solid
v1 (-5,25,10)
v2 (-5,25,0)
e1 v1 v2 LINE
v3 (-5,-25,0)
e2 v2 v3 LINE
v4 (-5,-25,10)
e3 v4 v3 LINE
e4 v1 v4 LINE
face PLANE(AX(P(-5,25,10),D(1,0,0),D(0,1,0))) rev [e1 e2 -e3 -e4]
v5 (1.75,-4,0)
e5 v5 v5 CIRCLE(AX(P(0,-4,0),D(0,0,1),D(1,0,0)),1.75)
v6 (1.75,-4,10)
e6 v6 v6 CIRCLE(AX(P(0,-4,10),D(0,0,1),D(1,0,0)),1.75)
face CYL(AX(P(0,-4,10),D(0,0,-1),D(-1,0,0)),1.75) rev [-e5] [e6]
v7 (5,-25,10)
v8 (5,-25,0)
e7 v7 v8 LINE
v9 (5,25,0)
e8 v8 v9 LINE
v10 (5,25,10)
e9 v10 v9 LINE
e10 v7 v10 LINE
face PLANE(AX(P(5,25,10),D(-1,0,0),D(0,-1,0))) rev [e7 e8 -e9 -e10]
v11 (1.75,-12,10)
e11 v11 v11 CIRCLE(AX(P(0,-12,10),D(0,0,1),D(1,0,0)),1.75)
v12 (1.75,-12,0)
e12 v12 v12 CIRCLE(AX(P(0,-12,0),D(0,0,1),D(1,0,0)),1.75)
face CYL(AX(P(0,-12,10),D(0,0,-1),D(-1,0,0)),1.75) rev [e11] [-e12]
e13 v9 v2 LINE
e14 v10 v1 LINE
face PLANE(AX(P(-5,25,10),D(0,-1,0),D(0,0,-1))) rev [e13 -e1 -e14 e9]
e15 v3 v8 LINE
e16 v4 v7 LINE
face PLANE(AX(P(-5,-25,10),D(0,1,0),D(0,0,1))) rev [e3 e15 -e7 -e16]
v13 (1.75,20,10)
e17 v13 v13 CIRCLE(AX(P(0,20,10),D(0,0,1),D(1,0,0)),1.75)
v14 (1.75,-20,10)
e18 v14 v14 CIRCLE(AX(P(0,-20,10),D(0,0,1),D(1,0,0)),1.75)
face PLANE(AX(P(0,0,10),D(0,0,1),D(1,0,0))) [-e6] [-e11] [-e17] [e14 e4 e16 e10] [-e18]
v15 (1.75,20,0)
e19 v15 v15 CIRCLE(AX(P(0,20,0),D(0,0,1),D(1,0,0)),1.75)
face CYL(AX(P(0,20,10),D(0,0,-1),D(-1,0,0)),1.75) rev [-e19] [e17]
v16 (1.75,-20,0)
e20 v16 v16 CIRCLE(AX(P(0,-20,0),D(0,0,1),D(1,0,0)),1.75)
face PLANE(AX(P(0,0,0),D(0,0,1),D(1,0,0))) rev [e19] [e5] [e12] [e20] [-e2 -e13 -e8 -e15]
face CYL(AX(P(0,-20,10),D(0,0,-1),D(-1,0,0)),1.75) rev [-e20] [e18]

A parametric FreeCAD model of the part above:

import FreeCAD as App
import Part
import Sketcher

V = App.Vector
Q = App.Units.Quantity


def add_polygon(sketch, points):
    """Adds a closed chain of lines whose ends are joined by coincident constraints."""
    first, n = sketch.GeometryCount, len(points)
    for a, b in zip(points, points[1:] + points[:1]):
        sketch.addGeometry(Part.LineSegment(App.Vector(*a, 0), App.Vector(*b, 0)), False)
    for i in range(n):
        sketch.addConstraint(Sketcher.Constraint("Coincident", first + i, 2, first + (i + 1) % n, 1))

doc = App.newDocument("Part")
body = doc.addObject("PartDesign::Body", "Body")

sketch1 = body.newObject("Sketcher::SketchObject", "Sketch")
sketch1.AttachmentSupport = (doc.getObject("XY_Plane"), [""])
sketch1.MapMode = "FlatFace"
add_polygon(sketch1, [(-5, 25), (-5, -25), (5, -25), (5, 25)])
sketch1.addGeometry(Part.Circle(V(0, -20, 0), V(0, 0, 1), 1.8), False)
sketch1.addGeometry(Part.Circle(V(0, -12, 0), V(0, 0, 1), 1.8), False)
sketch1.addGeometry(Part.Circle(V(0, -4, 0), V(0, 0, 1), 1.8), False)
sketch1.addGeometry(Part.Circle(V(0, 20, 0), V(0, 0, 1), 1.8), False)
sketch1.addConstraint([
    Sketcher.Constraint("Vertical", 0),
    Sketcher.Constraint("Horizontal", 1),
    Sketcher.Constraint("Vertical", 2),
    Sketcher.Constraint("Horizontal", 3),
    Sketcher.Constraint("Equal", 4, 5),
    Sketcher.Constraint("Equal", 5, 6),
    Sketcher.Constraint("Equal", 6, 7),
    Sketcher.Constraint("Symmetric", 4, 3, 7, 3, -1, 1),
    Sketcher.Constraint("Symmetric", 0, 2, 2, 2, -1, 1),
    Sketcher.Constraint("PointOnObject", 4, 3, -2),
    Sketcher.Constraint("PointOnObject", 5, 3, -2),
    Sketcher.Constraint("PointOnObject", 6, 3, -2),
    Sketcher.Constraint("Diameter", 4, Q("3.5 mm")),
    Sketcher.Constraint("DistanceX", 1, 1, 1, 2, Q("10 mm")),
    Sketcher.Constraint("DistanceY", 0, 2, 0, 1, Q("50 mm")),
    Sketcher.Constraint("DistanceY", 4, 3, -1, 1, Q("20 mm")),
    Sketcher.Constraint("DistanceY", 5, 3, -1, 1, Q("12 mm")),
    Sketcher.Constraint("DistanceY", 6, 3, -1, 1, Q("4 mm")),
])
pad1 = body.newObject("PartDesign::Pad", "Pad")
pad1.Profile = sketch1
pad1.Length = 10

doc.recompute()
